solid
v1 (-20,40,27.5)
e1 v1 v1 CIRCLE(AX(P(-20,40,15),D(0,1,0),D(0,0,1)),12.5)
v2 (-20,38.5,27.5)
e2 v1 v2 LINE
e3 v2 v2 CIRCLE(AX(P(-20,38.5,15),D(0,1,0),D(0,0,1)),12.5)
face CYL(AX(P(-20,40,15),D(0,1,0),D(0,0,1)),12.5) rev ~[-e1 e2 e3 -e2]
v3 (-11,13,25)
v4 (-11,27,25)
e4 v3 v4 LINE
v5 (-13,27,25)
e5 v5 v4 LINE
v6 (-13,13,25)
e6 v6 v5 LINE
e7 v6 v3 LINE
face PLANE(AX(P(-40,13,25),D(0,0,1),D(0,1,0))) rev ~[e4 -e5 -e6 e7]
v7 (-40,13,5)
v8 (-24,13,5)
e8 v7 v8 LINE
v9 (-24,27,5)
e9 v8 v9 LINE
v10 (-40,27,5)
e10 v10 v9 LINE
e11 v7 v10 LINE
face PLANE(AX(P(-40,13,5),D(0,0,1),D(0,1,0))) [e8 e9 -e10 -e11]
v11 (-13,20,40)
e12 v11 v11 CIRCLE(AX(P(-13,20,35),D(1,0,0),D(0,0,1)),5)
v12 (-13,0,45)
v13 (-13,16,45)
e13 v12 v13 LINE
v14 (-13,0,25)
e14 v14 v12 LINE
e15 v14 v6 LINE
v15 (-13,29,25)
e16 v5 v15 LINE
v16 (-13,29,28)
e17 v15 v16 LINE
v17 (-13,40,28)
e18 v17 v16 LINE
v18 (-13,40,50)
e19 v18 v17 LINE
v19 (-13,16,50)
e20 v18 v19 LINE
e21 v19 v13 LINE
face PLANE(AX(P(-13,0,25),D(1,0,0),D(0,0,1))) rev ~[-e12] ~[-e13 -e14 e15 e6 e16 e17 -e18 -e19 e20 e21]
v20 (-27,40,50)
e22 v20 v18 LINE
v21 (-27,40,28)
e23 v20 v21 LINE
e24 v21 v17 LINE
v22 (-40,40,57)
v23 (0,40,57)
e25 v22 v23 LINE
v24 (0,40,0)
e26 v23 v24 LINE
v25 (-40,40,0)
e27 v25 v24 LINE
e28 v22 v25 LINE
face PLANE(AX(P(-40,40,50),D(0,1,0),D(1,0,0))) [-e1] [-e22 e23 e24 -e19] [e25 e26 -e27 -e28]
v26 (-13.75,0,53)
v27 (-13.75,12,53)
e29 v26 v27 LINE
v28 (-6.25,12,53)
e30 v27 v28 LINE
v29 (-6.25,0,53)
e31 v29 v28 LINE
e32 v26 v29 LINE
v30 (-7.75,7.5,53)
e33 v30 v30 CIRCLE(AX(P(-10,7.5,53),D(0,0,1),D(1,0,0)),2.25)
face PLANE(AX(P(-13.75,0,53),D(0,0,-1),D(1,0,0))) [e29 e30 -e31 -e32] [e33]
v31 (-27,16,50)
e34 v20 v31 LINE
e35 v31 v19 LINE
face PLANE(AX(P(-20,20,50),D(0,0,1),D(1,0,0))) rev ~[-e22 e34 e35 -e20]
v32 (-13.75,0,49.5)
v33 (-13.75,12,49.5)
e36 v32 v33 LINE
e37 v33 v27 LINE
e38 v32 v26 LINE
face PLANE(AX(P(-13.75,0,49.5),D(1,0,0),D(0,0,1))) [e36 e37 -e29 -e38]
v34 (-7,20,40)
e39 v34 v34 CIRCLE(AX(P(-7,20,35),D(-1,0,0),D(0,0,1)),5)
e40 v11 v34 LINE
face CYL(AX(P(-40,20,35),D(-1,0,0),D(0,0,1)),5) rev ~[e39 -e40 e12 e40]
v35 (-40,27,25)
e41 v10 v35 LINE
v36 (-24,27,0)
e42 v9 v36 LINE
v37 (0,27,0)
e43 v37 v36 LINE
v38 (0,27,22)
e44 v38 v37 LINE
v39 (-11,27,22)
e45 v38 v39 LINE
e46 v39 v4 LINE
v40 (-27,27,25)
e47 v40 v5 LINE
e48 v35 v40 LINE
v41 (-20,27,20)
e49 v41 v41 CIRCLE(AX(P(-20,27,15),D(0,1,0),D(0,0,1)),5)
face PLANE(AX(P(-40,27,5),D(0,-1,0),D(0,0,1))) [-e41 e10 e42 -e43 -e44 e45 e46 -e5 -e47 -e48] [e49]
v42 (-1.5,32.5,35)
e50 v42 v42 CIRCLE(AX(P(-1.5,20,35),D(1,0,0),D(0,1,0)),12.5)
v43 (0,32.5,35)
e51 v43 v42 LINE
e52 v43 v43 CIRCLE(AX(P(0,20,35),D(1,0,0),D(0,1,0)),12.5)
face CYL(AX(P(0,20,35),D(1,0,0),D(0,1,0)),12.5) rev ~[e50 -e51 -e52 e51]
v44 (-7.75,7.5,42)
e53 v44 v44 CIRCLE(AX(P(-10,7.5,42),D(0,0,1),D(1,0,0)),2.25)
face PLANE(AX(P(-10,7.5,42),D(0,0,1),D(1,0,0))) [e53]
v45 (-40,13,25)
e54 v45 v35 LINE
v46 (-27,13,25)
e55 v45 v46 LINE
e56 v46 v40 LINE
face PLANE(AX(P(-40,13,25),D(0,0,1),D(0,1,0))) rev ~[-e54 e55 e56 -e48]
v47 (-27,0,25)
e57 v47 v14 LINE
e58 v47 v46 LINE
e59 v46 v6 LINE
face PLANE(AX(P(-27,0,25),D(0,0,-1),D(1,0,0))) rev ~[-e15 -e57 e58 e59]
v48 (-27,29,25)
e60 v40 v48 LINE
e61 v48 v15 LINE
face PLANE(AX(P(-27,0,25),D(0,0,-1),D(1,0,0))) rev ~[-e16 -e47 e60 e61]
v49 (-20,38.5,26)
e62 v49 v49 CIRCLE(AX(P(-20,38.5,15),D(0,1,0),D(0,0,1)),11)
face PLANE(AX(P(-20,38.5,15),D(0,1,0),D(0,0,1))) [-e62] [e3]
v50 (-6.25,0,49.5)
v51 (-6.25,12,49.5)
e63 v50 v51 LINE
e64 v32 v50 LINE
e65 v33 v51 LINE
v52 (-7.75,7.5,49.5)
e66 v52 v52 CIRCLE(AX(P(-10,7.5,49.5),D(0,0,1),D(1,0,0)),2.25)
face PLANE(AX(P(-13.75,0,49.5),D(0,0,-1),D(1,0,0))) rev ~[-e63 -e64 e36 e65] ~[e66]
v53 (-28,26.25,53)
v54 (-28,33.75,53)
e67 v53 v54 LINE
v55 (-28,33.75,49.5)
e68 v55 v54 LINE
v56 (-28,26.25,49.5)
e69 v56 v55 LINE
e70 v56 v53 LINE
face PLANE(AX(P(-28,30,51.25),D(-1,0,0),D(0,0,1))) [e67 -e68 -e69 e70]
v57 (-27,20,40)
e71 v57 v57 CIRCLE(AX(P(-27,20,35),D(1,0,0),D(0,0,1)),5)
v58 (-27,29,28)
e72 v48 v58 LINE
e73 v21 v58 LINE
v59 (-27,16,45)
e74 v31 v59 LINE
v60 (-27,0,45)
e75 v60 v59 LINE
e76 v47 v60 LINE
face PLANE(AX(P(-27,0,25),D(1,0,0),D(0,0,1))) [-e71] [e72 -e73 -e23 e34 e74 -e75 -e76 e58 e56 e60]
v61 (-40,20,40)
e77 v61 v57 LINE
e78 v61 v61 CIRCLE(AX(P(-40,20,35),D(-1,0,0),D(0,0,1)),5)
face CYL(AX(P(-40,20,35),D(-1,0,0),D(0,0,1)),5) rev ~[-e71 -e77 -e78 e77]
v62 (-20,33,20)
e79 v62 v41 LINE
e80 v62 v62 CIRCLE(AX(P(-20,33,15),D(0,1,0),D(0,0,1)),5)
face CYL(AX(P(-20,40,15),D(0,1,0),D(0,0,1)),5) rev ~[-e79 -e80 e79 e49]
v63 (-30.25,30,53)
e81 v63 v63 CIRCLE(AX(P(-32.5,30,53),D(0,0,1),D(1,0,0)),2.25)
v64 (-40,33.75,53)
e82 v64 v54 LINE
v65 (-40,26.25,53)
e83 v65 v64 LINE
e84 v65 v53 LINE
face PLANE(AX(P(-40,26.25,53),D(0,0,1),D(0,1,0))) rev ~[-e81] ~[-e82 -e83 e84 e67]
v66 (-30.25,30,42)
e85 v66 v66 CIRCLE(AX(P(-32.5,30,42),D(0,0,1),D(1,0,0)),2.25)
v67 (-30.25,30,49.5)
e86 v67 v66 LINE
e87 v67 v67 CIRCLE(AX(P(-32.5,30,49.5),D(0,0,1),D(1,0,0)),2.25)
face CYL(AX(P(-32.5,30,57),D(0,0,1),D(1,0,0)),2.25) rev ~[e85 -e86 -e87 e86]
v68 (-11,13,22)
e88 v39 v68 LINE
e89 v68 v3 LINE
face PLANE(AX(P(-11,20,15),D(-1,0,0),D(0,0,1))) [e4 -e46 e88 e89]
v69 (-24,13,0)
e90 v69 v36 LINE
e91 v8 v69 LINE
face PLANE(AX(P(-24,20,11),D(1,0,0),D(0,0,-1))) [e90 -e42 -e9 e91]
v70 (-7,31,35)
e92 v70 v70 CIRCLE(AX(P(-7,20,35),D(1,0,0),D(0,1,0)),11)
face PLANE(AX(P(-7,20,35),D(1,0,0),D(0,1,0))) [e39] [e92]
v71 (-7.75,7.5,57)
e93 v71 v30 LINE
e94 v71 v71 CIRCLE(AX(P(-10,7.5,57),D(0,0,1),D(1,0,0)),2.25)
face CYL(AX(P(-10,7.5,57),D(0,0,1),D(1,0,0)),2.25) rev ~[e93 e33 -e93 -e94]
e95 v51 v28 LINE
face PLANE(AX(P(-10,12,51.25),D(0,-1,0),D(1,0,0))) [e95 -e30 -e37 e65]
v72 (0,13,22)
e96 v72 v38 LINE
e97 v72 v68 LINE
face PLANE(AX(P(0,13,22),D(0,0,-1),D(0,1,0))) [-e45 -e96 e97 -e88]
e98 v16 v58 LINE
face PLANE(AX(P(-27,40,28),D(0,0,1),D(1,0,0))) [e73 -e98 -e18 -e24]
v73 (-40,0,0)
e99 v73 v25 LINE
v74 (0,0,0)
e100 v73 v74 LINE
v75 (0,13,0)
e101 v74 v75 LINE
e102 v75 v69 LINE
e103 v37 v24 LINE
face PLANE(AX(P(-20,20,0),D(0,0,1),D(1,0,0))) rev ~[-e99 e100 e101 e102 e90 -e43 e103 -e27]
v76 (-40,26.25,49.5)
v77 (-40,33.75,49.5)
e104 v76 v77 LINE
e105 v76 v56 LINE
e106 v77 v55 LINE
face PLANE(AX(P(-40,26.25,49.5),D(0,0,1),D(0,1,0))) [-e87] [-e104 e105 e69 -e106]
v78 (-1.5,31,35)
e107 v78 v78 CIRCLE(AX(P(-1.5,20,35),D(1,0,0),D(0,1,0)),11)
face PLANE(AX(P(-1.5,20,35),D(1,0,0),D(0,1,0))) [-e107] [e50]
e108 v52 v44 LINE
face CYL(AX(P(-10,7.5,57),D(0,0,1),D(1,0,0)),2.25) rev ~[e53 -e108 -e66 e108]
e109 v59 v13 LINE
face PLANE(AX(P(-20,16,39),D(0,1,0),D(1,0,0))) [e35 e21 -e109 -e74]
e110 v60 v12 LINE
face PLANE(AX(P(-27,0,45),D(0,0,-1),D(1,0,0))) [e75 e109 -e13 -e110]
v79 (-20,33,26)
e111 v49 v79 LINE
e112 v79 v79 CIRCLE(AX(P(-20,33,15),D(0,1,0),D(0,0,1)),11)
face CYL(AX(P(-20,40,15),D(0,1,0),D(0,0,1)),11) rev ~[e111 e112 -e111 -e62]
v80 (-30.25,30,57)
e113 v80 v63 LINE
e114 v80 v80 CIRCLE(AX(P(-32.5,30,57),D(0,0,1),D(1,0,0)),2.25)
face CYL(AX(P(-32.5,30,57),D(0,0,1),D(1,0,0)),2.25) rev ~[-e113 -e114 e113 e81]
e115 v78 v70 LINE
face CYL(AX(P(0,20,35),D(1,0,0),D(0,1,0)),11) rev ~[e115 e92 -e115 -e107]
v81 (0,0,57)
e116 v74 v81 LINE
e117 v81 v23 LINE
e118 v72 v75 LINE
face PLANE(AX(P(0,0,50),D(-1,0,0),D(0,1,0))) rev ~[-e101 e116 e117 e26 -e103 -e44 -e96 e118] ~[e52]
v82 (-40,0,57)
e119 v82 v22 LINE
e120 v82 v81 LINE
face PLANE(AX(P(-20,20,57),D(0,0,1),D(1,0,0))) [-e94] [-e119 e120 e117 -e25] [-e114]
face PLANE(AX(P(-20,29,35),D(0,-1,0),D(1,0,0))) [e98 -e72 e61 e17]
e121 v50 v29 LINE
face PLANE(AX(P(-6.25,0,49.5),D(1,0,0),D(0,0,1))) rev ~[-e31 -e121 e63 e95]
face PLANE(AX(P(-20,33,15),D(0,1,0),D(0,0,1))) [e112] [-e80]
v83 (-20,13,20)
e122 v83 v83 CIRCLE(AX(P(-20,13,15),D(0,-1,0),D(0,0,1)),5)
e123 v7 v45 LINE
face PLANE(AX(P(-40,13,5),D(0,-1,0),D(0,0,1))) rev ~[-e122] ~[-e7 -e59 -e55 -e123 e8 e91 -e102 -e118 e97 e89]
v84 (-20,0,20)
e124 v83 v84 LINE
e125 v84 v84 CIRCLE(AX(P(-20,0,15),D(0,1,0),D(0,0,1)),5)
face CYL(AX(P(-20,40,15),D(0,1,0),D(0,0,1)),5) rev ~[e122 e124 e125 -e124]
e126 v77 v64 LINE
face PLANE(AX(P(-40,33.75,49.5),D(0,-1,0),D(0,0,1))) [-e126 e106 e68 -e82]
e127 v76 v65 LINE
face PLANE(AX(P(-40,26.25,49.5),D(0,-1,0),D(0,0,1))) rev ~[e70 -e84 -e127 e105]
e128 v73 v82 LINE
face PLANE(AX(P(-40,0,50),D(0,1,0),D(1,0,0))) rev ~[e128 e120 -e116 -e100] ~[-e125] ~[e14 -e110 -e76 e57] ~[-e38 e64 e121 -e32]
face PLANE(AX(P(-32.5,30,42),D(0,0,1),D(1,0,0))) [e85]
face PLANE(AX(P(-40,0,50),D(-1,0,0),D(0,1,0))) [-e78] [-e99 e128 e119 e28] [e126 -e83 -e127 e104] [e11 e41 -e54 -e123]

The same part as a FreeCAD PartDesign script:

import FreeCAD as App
import Part
import Sketcher

V = App.Vector


def add_polygon(sketch, points):
    """Adds a closed chain of lines whose ends are joined by coincident constraints."""
    first, n = sketch.GeometryCount, len(points)
    for a, b in zip(points, points[1:] + points[:1]):
        sketch.addGeometry(Part.LineSegment(App.Vector(*a, 0), App.Vector(*b, 0)), False)
    for i in range(n):
        sketch.addConstraint(Sketcher.Constraint("Coincident", first + i, 2, first + (i + 1) % n, 1))

doc = App.newDocument("Part")
body = doc.addObject("PartDesign::Body", "Body")

sketch1 = doc.addObject("Sketcher::SketchObject", "Sketch")
body.addObject(sketch1)
sketch1.AttachmentSupport = (doc.XY_Plane, [""])
sketch1.MapMode = "FlatFace"
add_polygon(sketch1, [(-40, 40), (-40, 0), (0, 0), (0, 40)])
sketch1.addConstraint([
    Sketcher.Constraint("Vertical", 0),
    Sketcher.Constraint("Horizontal", 1),
    Sketcher.Constraint("Vertical", 2),
    Sketcher.Constraint("Horizontal", 3),
    Sketcher.Constraint("Coincident", 1, 2, -1, 1),
    Sketcher.Constraint("Equal", 3, 0),
    Sketcher.Constraint("DistanceX", 1, 1, 1, 2, 40.0),
])
pad1 = doc.addObject("PartDesign::Pad", "Pad")
body.addObject(pad1)
pad1.Profile = sketch1
pad1.Length = 50

sketch2 = doc.addObject("Sketcher::SketchObject", "Sketch001")
body.addObject(sketch2)
sketch2.AttachmentSupport = (doc.XZ_Plane, [""])
sketch2.MapMode = "FlatFace"
sketch2.AttachmentOffset = App.Placement(V(0, 0, -40), App.Rotation())
sketch2.addGeometry(Part.Circle(V(-20, 15, 0), V(0, 0, 1), 5), False)
sketch2.addConstraint([
    Sketcher.Constraint("Diameter", 0, 10.0),
    Sketcher.Constraint("DistanceX", 0, 3, -1, 1, 20.0),
    Sketcher.Constraint("DistanceY", -1, 1, 0, 3, 15.0),
])
pocket1 = doc.addObject("PartDesign::Pocket", "Pocket")
body.addObject(pocket1)
pocket1.Profile = sketch2
pocket1.Type = "ThroughAll"
pocket1.Reversed = True

sketch3 = doc.addObject("Sketcher::SketchObject", "Sketch002")
body.addObject(sketch3)
sketch3.AttachmentSupport = (doc.YZ_Plane, [""])
sketch3.MapMode = "FlatFace"
sketch3.AttachmentOffset = App.Placement(V(0, 0, -40), App.Rotation())
sketch3.addGeometry(Part.Circle(V(20, 35, 0), V(0, 0, 1), 5), False)
sketch3.addConstraint([
    Sketcher.Constraint("Diameter", 0, 10.0),
    Sketcher.Constraint("DistanceX", -1, 1, 0, 3, 20.0),
    Sketcher.Constraint("DistanceY", -1, 1, 0, 3, 35.0),
])
pocket2 = doc.addObject("PartDesign::Pocket", "Pocket001")
body.addObject(pocket2)
pocket2.Profile = sketch3
pocket2.Type = "ThroughAll"
pocket2.Reversed = True

sketch4 = doc.addObject("Sketcher::SketchObject", "Sketch003")
body.addObject(sketch4)
sketch4.AttachmentSupport = (doc.YZ_Plane, [""])
sketch4.MapMode = "FlatFace"
sketch4.AttachmentOffset = App.Placement(V(0, 0, -40), App.Rotation())
add_polygon(sketch4, [(27, 5), (13, 5), (13, 25), (27, 25)])
sketch4.addConstraint([
    Sketcher.Constraint("Horizontal", 0),
    Sketcher.Constraint("Vertical", 1),
    Sketcher.Constraint("Horizontal", 2),
    Sketcher.Constraint("Vertical", 3),
    Sketcher.Constraint("DistanceX", 0, 2, 0, 1, 14.0),
    Sketcher.Constraint("DistanceY", 1, 1, 1, 2, 20.0),
    Sketcher.Constraint("DistanceX", -1, 1, 0, 2, 13.0),
    Sketcher.Constraint("DistanceY", -1, 1, 0, 2, 5.0),
])
pocket3 = doc.addObject("PartDesign::Pocket", "Pocket002")
body.addObject(pocket3)
pocket3.Profile = sketch4
pocket3.Length = 29
pocket3.Reversed = True

sketch5 = doc.addObject("Sketcher::SketchObject", "Sketch004")
body.addObject(sketch5)
sketch5.AttachmentSupport = (doc.XZ_Plane, [""])
sketch5.MapMode = "FlatFace"
add_polygon(sketch5, [(-27, 45), (-27, 25), (-13, 25), (-13, 45)])
sketch5.addConstraint([
    Sketcher.Constraint("Vertical", 0),
    Sketcher.Constraint("Horizontal", 1),
    Sketcher.Constraint("Vertical", 2),
    Sketcher.Constraint("Horizontal", 3),
    Sketcher.Constraint("DistanceX", 1, 1, 1, 2, 14.0),
    Sketcher.Constraint("DistanceY", 0, 2, 0, 1, 20.0),
    Sketcher.Constraint("DistanceX", 0, 2, -1, 1, 27.0),
    Sketcher.Constraint("DistanceY", -1, 1, 0, 2, 25.0),
])
pocket4 = doc.addObject("PartDesign::Pocket", "Pocket003")
body.addObject(pocket4)
pocket4.Profile = sketch5
pocket4.Length = 29

sketch6 = doc.addObject("Sketcher::SketchObject", "Sketch005")
body.addObject(sketch6)
sketch6.AttachmentSupport = (doc.YZ_Plane, [""])
sketch6.MapMode = "FlatFace"
add_polygon(sketch6, [(27, 22), (13, 22), (13, 0), (27, 0)])
sketch6.addConstraint([
    Sketcher.Constraint("Horizontal", 0),
    Sketcher.Constraint("Vertical", 1),
    Sketcher.Constraint("Horizontal", 2),
    Sketcher.Constraint("Vertical", 3),
    Sketcher.Constraint("PointOnObject", 1, 2, -1),
    Sketcher.Constraint("DistanceX", 0, 2, 0, 1, 14.0),
    Sketcher.Constraint("DistanceY", 1, 2, 1, 1, 22.0),
    Sketcher.Constraint("DistanceX", -1, 1, 0, 2, 13.0),
])
pocket5 = doc.addObject("PartDesign::Pocket", "Pocket004")
body.addObject(pocket5)
pocket5.Profile = sketch6
pocket5.Length = 24

sketch7 = doc.addObject("Sketcher::SketchObject", "Sketch006")
body.addObject(sketch7)
sketch7.AttachmentSupport = (doc.XZ_Plane, [""])
sketch7.MapMode = "FlatFace"
sketch7.AttachmentOffset = App.Placement(V(0, 0, -40), App.Rotation())
add_polygon(sketch7, [(-27, 28), (-27, 50), (-13, 50), (-13, 28)])
sketch7.addConstraint([
    Sketcher.Constraint("Vertical", 0),
    Sketcher.Constraint("Horizontal", 1),
    Sketcher.Constraint("Vertical", 2),
    Sketcher.Constraint("Horizontal", 3),
    Sketcher.Constraint("DistanceX", 1, 1, 1, 2, 14.0),
    Sketcher.Constraint("DistanceY", 0, 1, 0, 2, 22.0),
    Sketcher.Constraint("DistanceX", 0, 2, -1, 1, 27.0),
    Sketcher.Constraint("DistanceY", -1, 1, 0, 2, 50.0),
])
pocket6 = doc.addObject("PartDesign::Pocket", "Pocket005")
body.addObject(pocket6)
pocket6.Profile = sketch7
pocket6.Length = 24
pocket6.Reversed = True

sketch8 = doc.addObject("Sketcher::SketchObject", "Sketch007")
body.addObject(sketch8)
sketch8.AttachmentSupport = (doc.YZ_Plane, [""])
sketch8.MapMode = "FlatFace"
sketch8.addGeometry(Part.Circle(V(20, 35, 0), V(0, 0, 1), 11), False)
sketch8.addConstraint([
    Sketcher.Constraint("Diameter", 0, 22.0),
    Sketcher.Constraint("DistanceX", -1, 1, 0, 3, 20.0),
    Sketcher.Constraint("DistanceY", -1, 1, 0, 3, 35.0),
])
pocket7 = doc.addObject("PartDesign::Pocket", "Pocket006")
body.addObject(pocket7)
pocket7.Profile = sketch8
pocket7.Length = 7

sketch9 = doc.addObject("Sketcher::SketchObject", "Sketch008")
body.addObject(sketch9)
sketch9.AttachmentSupport = (doc.YZ_Plane, [""])
sketch9.MapMode = "FlatFace"
sketch9.addGeometry(Part.Circle(V(20, 35, 0), V(0, 0, 1), 12.5), False)
sketch9.addConstraint([
    Sketcher.Constraint("Diameter", 0, 25.0),
    Sketcher.Constraint("DistanceX", -1, 1, 0, 3, 20.0),
    Sketcher.Constraint("DistanceY", -1, 1, 0, 3, 35.0),
])
pocket8 = doc.addObject("PartDesign::Pocket", "Pocket007")
body.addObject(pocket8)
pocket8.Profile = sketch9
pocket8.Length = 1.5

sketch10 = doc.addObject("Sketcher::SketchObject", "Sketch009")
body.addObject(sketch10)
sketch10.AttachmentSupport = (doc.XZ_Plane, [""])
sketch10.MapMode = "FlatFace"
sketch10.AttachmentOffset = App.Placement(V(0, 0, -40), App.Rotation())
sketch10.addGeometry(Part.Circle(V(-20, 15, 0), V(0, 0, 1), 11), False)
sketch10.addConstraint([
    Sketcher.Constraint("Diameter", 0, 22.0),
    Sketcher.Constraint("DistanceX", 0, 3, -1, 1, 20.0),
    Sketcher.Constraint("DistanceY", -1, 1, 0, 3, 15.0),
])
pocket9 = doc.addObject("PartDesign::Pocket", "Pocket008")
body.addObject(pocket9)
pocket9.Profile = sketch10
pocket9.Length = 7
pocket9.Reversed = True

sketch11 = doc.addObject("Sketcher::SketchObject", "Sketch010")
body.addObject(sketch11)
sketch11.AttachmentSupport = (doc.XZ_Plane, [""])
sketch11.MapMode = "FlatFace"
sketch11.AttachmentOffset = App.Placement(V(0, 0, -40), App.Rotation())
sketch11.addGeometry(Part.Circle(V(-20, 15, 0), V(0, 0, 1), 12.5), False)
sketch11.addConstraint([
    Sketcher.Constraint("Diameter", 0, 25.0),
    Sketcher.Constraint("DistanceX", 0, 3, -1, 1, 20.0),
    Sketcher.Constraint("DistanceY", -1, 1, 0, 3, 15.0),
])
pocket10 = doc.addObject("PartDesign::Pocket", "Pocket009")
body.addObject(pocket10)
pocket10.Profile = sketch11
pocket10.Length = 1.5
pocket10.Reversed = True

sketch12 = doc.addObject("Sketcher::SketchObject", "Sketch011")
body.addObject(sketch12)
sketch12.AttachmentSupport = (doc.XY_Plane, [""])
sketch12.MapMode = "FlatFace"
sketch12.AttachmentOffset = App.Placement(V(0, 0, 50), App.Rotation())
add_polygon(sketch12, [(-40, 40), (-40, 0), (0, 0), (0, 40)])
sketch12.addConstraint([
    Sketcher.Constraint("Vertical", 0),
    Sketcher.Constraint("Horizontal", 1),
    Sketcher.Constraint("Vertical", 2),
    Sketcher.Constraint("Horizontal", 3),
    Sketcher.Constraint("Coincident", 1, 2, -1, 1),
    Sketcher.Constraint("Equal", 3, 0),
    Sketcher.Constraint("DistanceX", 1, 1, 1, 2, 40.0),
])
pad2 = doc.addObject("PartDesign::Pad", "Pad001")
body.addObject(pad2)
pad2.Profile = sketch12
pad2.Length = 7

sketch13 = doc.addObject("Sketcher::SketchObject", "Sketch012")
body.addObject(sketch13)
sketch13.AttachmentSupport = (doc.XY_Plane, [""])
sketch13.MapMode = "FlatFace"
sketch13.AttachmentOffset = App.Placement(V(0, 0, 57), App.Rotation())
sketch13.addGeometry([
    Part.Circle(V(-32.5, 30, 0), V(0, 0, 1), 2.25),
    Part.Circle(V(-10, 7.5, 0), V(0, 0, 1), 2.25),
], False)
sketch13.addConstraint([
    Sketcher.Constraint("Equal", 0, 1),
    Sketcher.Constraint("Diameter", 0, 4.5),
    Sketcher.Constraint("DistanceY", -1, 1, 0, 3, 30.0),
    Sketcher.Constraint("DistanceX", 1, 3, -1, 1, 10.0),
    Sketcher.Constraint("DistanceX", 0, 3, -1, 1, 32.5),
    Sketcher.Constraint("DistanceY", -1, 1, 1, 3, 7.5),
])
pocket11 = doc.addObject("PartDesign::Pocket", "Pocket010")
body.addObject(pocket11)
pocket11.Profile = sketch13
pocket11.Length = 15

sketch14 = doc.addObject("Sketcher::SketchObject", "Sketch013")
body.addObject(sketch14)
sketch14.AttachmentSupport = (doc.XZ_Plane, [""])
sketch14.MapMode = "FlatFace"
add_polygon(sketch14, [(-13.75, 53), (-13.75, 49.5), (-6.25, 49.5), (-6.25, 53)])
sketch14.addConstraint([
    Sketcher.Constraint("Vertical", 0),
    Sketcher.Constraint("Horizontal", 1),
    Sketcher.Constraint("Vertical", 2),
    Sketcher.Constraint("Horizontal", 3),
    Sketcher.Constraint("DistanceX", 1, 1, 1, 2, 7.5),
    Sketcher.Constraint("DistanceY", 0, 2, 0, 1, 3.5),
    Sketcher.Constraint("DistanceY", -1, 1, 2, 2, 53.0),
    Sketcher.Constraint("DistanceX", 0, 2, -1, 1, 13.75),
])
pocket12 = doc.addObject("PartDesign::Pocket", "Pocket011")
body.addObject(pocket12)
pocket12.Profile = sketch14
pocket12.Length = 12

sketch15 = doc.addObject("Sketcher::SketchObject", "Sketch014")
body.addObject(sketch15)
sketch15.AttachmentSupport = (doc.YZ_Plane, [""])
sketch15.MapMode = "FlatFace"
sketch15.AttachmentOffset = App.Placement(V(0, 0, -40), App.Rotation())
add_polygon(sketch15, [(33.75, 49.5), (26.25, 49.5), (26.25, 53), (33.75, 53)])
sketch15.addConstraint([
    Sketcher.Constraint("Horizontal", 0),
    Sketcher.Constraint("Vertical", 1),
    Sketcher.Constraint("Horizontal", 2),
    Sketcher.Constraint("Vertical", 3),
    Sketcher.Constraint("DistanceX", 0, 2, 0, 1, 7.5),
    Sketcher.Constraint("DistanceY", 1, 1, 1, 2, 3.5),
    Sketcher.Constraint("DistanceY", -1, 1, 1, 2, 53.0),
    Sketcher.Constraint("DistanceX", -1, 1, 0, 2, 26.25),
])
pocket13 = doc.addObject("PartDesign::Pocket", "Pocket012")
body.addObject(pocket13)
pocket13.Profile = sketch15
pocket13.Length = 12
pocket13.Reversed = True

doc.recompute()
